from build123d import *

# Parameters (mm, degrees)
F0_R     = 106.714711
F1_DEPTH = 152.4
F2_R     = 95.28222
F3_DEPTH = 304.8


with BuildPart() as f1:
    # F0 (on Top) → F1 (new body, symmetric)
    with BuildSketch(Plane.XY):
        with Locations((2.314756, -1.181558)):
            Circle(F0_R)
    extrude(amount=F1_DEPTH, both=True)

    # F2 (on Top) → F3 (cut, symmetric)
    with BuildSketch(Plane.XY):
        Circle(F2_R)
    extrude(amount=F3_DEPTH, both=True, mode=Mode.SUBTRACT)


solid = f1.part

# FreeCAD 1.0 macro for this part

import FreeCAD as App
import Part
import Sketcher
from FreeCAD import Vector
Q = App.Units.Quantity

doc = App.newDocument("Part")
body = doc.addObject("PartDesign::Body", "Body")

sketch1 = body.newObject("Sketcher::SketchObject", "Sketch")
sketch1.AttachmentSupport = (doc.getObject("XY_Plane"), [""])
sketch1.MapMode = "FlatFace"
sketch1.addGeometry(Part.Circle(Vector(2, -1, 0), Vector(0, 0, 1), 107), False)
sketch1.addConstraint(Sketcher.Constraint("Diameter", 0, 213.429422))
sketch1.addConstraint(Sketcher.Constraint("DistanceY", 0, 3, -1, 1, 1.181558))
sketch1.addConstraint(Sketcher.Constraint("DistanceX", -1, 1, 0, 3, 2.314756))
pad1 = body.newObject("PartDesign::Pad", "Pad")
pad1.Profile = sketch1
pad1.Length = Q("12 in")
pad1.Midplane = True

sketch2 = body.newObject("Sketcher::SketchObject", "Sketch001")
sketch2.AttachmentSupport = (doc.getObject("XY_Plane"), [""])
sketch2.MapMode = "FlatFace"
sketch2.addGeometry(Part.Circle(Vector(0, 0, 0), Vector(0, 0, 1), 95), False)
sketch2.addConstraint(Sketcher.Constraint("Coincident", 0, 3, -1, 1))
sketch2.addConstraint(Sketcher.Constraint("Diameter", 0, 190.56444))
pocket1 = body.newObject("PartDesign::Pocket", "Pocket")
pocket1.Profile = sketch2
pocket1.Length = Q("24 in")
pocket1.Midplane = True

doc.recompute()
